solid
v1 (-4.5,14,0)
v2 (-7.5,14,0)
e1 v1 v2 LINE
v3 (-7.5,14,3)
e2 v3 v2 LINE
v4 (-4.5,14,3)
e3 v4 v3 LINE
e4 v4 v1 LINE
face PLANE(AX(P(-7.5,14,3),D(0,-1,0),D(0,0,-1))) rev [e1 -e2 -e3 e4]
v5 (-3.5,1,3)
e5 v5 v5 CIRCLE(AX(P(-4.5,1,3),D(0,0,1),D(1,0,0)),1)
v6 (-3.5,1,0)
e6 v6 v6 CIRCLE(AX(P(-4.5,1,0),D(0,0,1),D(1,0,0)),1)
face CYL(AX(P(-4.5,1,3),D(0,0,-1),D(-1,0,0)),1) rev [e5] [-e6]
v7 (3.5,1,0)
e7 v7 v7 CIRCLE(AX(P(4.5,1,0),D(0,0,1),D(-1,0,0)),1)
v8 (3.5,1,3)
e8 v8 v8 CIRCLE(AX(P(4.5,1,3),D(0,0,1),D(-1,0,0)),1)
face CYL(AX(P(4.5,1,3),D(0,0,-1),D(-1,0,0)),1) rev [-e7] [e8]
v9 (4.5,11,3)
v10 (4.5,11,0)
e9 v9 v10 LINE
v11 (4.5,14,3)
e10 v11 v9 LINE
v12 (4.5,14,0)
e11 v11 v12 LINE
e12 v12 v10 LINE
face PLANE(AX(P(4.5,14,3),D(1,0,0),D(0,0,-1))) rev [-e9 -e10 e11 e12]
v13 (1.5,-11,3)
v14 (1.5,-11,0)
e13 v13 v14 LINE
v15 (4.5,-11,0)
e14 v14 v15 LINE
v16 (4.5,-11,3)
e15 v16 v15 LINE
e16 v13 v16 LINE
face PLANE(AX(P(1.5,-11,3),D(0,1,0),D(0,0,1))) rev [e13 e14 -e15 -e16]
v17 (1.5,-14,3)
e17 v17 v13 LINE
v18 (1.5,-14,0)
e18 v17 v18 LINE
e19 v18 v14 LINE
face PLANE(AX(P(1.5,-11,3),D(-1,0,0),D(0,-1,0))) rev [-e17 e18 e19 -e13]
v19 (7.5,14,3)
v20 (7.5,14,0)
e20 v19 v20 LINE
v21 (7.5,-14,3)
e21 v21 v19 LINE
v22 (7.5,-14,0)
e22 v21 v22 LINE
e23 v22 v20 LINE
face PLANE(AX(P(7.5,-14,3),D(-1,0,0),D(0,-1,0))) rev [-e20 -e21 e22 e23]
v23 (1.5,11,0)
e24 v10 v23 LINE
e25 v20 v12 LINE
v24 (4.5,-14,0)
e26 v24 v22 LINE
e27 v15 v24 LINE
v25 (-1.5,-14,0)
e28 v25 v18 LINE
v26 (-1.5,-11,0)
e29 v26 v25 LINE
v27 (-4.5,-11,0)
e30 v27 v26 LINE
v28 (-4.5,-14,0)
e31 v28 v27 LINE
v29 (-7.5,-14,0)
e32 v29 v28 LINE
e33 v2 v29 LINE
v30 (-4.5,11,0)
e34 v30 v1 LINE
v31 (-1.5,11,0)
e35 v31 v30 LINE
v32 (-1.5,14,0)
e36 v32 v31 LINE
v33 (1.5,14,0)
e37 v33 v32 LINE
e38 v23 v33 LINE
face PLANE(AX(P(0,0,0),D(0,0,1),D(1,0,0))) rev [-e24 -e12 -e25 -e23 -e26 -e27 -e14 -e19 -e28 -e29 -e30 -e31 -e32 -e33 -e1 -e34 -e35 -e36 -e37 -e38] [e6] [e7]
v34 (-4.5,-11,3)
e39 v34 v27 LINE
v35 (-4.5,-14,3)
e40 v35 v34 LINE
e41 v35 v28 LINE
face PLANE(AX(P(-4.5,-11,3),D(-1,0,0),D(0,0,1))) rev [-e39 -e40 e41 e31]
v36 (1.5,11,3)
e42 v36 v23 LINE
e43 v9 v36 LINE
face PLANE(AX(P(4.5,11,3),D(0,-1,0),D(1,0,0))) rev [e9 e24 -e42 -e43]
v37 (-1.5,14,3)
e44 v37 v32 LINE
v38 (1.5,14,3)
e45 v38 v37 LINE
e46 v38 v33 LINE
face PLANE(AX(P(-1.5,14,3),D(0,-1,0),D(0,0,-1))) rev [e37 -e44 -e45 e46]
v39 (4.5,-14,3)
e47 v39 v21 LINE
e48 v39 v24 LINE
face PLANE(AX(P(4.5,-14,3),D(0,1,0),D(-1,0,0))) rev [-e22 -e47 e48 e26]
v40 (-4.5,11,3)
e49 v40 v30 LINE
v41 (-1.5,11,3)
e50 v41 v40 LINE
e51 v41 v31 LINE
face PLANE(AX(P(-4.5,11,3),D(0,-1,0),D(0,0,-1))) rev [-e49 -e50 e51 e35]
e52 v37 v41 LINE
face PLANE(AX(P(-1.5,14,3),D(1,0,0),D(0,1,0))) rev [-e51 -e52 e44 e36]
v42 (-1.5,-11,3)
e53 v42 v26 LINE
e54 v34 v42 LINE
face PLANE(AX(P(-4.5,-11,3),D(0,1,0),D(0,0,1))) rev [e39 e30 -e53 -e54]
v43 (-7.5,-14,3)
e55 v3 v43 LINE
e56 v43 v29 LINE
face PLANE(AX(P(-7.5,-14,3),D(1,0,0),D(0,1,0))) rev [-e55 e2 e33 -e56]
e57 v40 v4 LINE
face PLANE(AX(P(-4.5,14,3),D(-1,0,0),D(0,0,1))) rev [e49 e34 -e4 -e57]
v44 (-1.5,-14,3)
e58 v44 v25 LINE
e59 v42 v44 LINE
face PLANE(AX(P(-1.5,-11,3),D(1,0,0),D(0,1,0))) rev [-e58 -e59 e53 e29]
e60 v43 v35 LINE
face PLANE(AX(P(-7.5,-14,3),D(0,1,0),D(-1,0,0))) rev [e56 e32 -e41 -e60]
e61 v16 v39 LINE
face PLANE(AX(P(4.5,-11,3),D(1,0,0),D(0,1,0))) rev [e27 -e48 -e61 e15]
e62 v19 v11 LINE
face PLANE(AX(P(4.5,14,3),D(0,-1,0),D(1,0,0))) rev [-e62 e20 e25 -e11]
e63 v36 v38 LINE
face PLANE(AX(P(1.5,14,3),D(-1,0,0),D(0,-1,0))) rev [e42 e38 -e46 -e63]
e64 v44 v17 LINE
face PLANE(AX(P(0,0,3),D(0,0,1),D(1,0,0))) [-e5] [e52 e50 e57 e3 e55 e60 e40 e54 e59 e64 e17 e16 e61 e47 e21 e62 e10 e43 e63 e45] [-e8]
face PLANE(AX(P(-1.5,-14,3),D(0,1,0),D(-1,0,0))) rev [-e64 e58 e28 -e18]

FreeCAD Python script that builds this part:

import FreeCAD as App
import Part
import Sketcher
from FreeCAD import Vector

doc = App.newDocument("Part")
body = doc.addObject("PartDesign::Body", "Body")

# Sketch on XY plane
sketch1 = doc.addObject("Sketcher::SketchObject", "Sketch")
body.addObject(sketch1)
sketch1.AttachmentSupport = (doc.XY_Plane, [""])
sketch1.MapMode = "FlatFace"
sketch1.addGeometry([
    Part.LineSegment(Vector(-7.5, -14, 0), Vector(-4.5, -14, 0)),  # 0
    Part.LineSegment(Vector(-4.5, -14, 0), Vector(-4.5, -11, 0)),  # 1
    Part.LineSegment(Vector(-4.5, -11, 0), Vector(-1.5, -11, 0)),  # 2
    Part.LineSegment(Vector(-1.5, -11, 0), Vector(-1.5, -14, 0)),  # 3
    Part.LineSegment(Vector(-1.5, -14, 0), Vector(1.5, -14, 0)),  # 4
    Part.LineSegment(Vector(1.5, -14, 0), Vector(1.5, -11, 0)),  # 5
    Part.LineSegment(Vector(1.5, -11, 0), Vector(4.5, -11, 0)),  # 6
    Part.LineSegment(Vector(4.5, -11, 0), Vector(4.5, -14, 0)),  # 7
    Part.LineSegment(Vector(4.5, -14, 0), Vector(7.5, -14, 0)),  # 8
    Part.LineSegment(Vector(7.5, -14, 0), Vector(7.5, 14, 0)),  # 9
    Part.LineSegment(Vector(7.5, 14, 0), Vector(4.5, 14, 0)),  # 10
    Part.LineSegment(Vector(4.5, 14, 0), Vector(4.5, 11, 0)),  # 11
    Part.LineSegment(Vector(4.5, 11, 0), Vector(1.5, 11, 0)),  # 12
    Part.LineSegment(Vector(1.5, 11, 0), Vector(1.5, 14, 0)),  # 13
    Part.LineSegment(Vector(1.5, 14, 0), Vector(-1.5, 14, 0)),  # 14
    Part.LineSegment(Vector(-1.5, 14, 0), Vector(-1.5, 11, 0)),  # 15
    Part.LineSegment(Vector(-1.5, 11, 0), Vector(-4.5, 11, 0)),  # 16
    Part.LineSegment(Vector(-4.5, 11, 0), Vector(-4.5, 14, 0)),  # 17
    Part.LineSegment(Vector(-4.5, 14, 0), Vector(-7.5, 14, 0)),  # 18
    Part.LineSegment(Vector(-7.5, 14, 0), Vector(-7.5, -14, 0)),  # 19
    Part.Circle(Vector(-4.5, 1, 0), Vector(0, 0, 1), 1),  # 20
    Part.Circle(Vector(4.5, 1, 0), Vector(0, 0, 1), 1),  # 21
], False)
sketch1.addConstraint([
    Sketcher.Constraint("Coincident", 0, 2, 1, 1),
    Sketcher.Constraint("Coincident", 1, 2, 2, 1),
    Sketcher.Constraint("Coincident", 2, 2, 3, 1),
    Sketcher.Constraint("Coincident", 3, 2, 4, 1),
    Sketcher.Constraint("Coincident", 4, 2, 5, 1),
    Sketcher.Constraint("Coincident", 5, 2, 6, 1),
    Sketcher.Constraint("Coincident", 6, 2, 7, 1),
    Sketcher.Constraint("Coincident", 7, 2, 8, 1),
    Sketcher.Constraint("Coincident", 8, 2, 9, 1),
    Sketcher.Constraint("Coincident", 9, 2, 10, 1),
    Sketcher.Constraint("Coincident", 10, 2, 11, 1),
    Sketcher.Constraint("Coincident", 11, 2, 12, 1),
    Sketcher.Constraint("Coincident", 12, 2, 13, 1),
    Sketcher.Constraint("Coincident", 13, 2, 14, 1),
    Sketcher.Constraint("Coincident", 14, 2, 15, 1),
    Sketcher.Constraint("Coincident", 15, 2, 16, 1),
    Sketcher.Constraint("Coincident", 16, 2, 17, 1),
    Sketcher.Constraint("Coincident", 17, 2, 18, 1),
    Sketcher.Constraint("Coincident", 18, 2, 19, 1),
    Sketcher.Constraint("Coincident", 19, 2, 0, 1),
    Sketcher.Constraint("Horizontal", 0),
    Sketcher.Constraint("Vertical", 1),
    Sketcher.Constraint("Horizontal", 2),
    Sketcher.Constraint("Vertical", 3),
    Sketcher.Constraint("Horizontal", 4),
    Sketcher.Constraint("Vertical", 5),
    Sketcher.Constraint("Horizontal", 6),
    Sketcher.Constraint("Vertical", 7),
    Sketcher.Constraint("Horizontal", 8),
    Sketcher.Constraint("Vertical", 9),
    Sketcher.Constraint("Horizontal", 10),
    Sketcher.Constraint("Vertical", 11),
    Sketcher.Constraint("Horizontal", 12),
    Sketcher.Constraint("Vertical", 13),
    Sketcher.Constraint("Horizontal", 14),
    Sketcher.Constraint("Vertical", 15),
    Sketcher.Constraint("Horizontal", 16),
    Sketcher.Constraint("Vertical", 17),
    Sketcher.Constraint("Horizontal", 18),
    Sketcher.Constraint("Vertical", 19),
    Sketcher.Constraint("Equal", 20, 21),
    Sketcher.Constraint("Symmetric", 0, 2, 10, 2, -1, 1),
    Sketcher.Constraint("Symmetric", 2, 2, 12, 2, -1, 1),
    Sketcher.Constraint("Symmetric", 4, 2, 14, 2, -1, 1),
    Sketcher.Constraint("Symmetric", 6, 2, 16, 2, -1, 1),
    Sketcher.Constraint("Symmetric", 8, 2, 18, 2, -1, 1),
    Sketcher.Constraint("Symmetric", 20, 3, 21, 3, -2),
    Sketcher.Constraint("Symmetric", 2, 2, 5, 2, -2),
    Sketcher.Constraint("Symmetric", 0, 2, 7, 2, -2),
    Sketcher.Constraint("Horizontal", 0, 2, 3, 2),
    Sketcher.Constraint("Vertical", 20, 3, 0, 2),
    Sketcher.Constraint("Equal", 0, 2),
    Sketcher.Constraint("Equal", 2, 4),
    Sketcher.Constraint("Equal", 18, 1),
    Sketcher.Constraint("Diameter", 20, 2.0),
    Sketcher.Constraint("DistanceX", 0, 1, 0, 2, 3.0),
    Sketcher.Constraint("DistanceY", 9, 1, 9, 2, 28.0),
    Sketcher.Constraint("DistanceY", -1, 1, 20, 3, 1.0),
])
pad1 = doc.addObject("PartDesign::Pad", "Pad")
body.addObject(pad1)
pad1.Profile = sketch1
pad1.Length = 3

doc.recompute()
